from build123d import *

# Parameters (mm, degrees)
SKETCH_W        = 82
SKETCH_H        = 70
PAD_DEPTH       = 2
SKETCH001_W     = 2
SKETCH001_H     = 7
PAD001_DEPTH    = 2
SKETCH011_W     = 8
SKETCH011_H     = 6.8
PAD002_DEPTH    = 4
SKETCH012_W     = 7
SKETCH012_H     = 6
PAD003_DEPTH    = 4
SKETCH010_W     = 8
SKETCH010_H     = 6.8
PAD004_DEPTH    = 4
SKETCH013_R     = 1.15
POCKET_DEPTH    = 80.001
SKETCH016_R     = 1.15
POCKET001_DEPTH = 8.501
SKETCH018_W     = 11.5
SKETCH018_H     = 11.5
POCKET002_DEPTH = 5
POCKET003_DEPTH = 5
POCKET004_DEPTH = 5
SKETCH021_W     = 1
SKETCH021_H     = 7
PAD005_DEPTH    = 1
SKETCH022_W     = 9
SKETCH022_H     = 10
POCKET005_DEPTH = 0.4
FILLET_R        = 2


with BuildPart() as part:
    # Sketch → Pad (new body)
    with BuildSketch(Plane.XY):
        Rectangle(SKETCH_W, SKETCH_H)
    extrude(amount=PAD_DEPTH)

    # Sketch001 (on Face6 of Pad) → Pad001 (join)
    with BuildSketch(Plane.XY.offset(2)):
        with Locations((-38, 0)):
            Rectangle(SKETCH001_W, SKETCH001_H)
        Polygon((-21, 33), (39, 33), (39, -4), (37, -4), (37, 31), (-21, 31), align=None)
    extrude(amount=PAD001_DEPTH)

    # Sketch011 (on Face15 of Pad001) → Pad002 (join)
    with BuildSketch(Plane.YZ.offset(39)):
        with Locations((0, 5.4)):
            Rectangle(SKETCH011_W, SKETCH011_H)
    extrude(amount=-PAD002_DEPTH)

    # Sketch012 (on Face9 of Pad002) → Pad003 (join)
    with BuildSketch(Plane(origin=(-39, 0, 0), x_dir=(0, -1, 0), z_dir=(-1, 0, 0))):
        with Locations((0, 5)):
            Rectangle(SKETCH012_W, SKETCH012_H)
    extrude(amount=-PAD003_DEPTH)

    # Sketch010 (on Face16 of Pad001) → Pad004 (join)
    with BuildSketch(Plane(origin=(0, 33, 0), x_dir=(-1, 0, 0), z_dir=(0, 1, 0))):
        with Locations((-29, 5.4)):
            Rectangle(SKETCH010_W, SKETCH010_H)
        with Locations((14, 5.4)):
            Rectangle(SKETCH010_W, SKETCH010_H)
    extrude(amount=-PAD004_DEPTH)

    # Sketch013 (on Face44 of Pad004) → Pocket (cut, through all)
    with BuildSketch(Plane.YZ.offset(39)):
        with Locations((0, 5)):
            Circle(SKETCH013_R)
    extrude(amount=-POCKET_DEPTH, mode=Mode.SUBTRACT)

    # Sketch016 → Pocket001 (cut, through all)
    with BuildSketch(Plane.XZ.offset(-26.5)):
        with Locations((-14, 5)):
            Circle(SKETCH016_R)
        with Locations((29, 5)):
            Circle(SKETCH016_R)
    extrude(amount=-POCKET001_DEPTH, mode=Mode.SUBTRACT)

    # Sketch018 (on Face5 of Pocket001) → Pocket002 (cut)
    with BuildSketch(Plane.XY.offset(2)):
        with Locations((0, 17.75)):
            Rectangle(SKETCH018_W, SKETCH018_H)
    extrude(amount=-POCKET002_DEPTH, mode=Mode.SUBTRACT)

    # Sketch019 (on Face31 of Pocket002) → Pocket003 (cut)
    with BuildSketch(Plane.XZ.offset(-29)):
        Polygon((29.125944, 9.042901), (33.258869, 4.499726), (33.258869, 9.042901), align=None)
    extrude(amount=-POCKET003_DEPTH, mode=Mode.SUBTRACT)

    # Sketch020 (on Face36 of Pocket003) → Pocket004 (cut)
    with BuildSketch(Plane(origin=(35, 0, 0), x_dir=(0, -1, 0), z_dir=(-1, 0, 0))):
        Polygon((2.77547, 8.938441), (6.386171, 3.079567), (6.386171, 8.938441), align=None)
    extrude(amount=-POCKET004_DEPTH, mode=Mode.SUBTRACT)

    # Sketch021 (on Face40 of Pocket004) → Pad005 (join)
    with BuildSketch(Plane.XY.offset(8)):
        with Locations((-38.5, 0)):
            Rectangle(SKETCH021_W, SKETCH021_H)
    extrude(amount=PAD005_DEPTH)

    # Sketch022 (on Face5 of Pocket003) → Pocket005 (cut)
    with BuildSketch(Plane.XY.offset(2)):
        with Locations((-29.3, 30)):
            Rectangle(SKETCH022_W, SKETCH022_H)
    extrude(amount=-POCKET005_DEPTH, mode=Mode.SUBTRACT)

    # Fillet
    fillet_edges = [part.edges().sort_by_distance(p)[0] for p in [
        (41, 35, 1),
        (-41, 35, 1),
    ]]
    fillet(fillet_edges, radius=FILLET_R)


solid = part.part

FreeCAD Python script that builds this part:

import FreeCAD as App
import Part
import Sketcher


def edges_at(feature, points):
    """Names of the edges that pass closest to the given points."""
    edges = feature.Shape.Edges
    near = lambda p: min(range(len(edges)), key=lambda i: edges[i].distToShape(Part.Vertex(*p))[0])
    return sorted({f"Edge{near(p) + 1}" for p in points})

doc = App.newDocument("Part")
body = doc.addObject("PartDesign::Body", "Body")

sketch1 = body.newObject("Sketcher::SketchObject", "Sketch")
sketch1.AttachmentSupport = (doc.getObject("XY_Plane"), [""])
sketch1.MapMode = "FlatFace"
sketch1.addGeometry([
    Part.LineSegment(App.Vector(-41, 35, 0), App.Vector(-41, -35, 0)),
    Part.LineSegment(App.Vector(-41, -35, 0), App.Vector(41, -35, 0)),
    Part.LineSegment(App.Vector(41, -35, 0), App.Vector(41, 35, 0)),
    Part.LineSegment(App.Vector(41, 35, 0), App.Vector(-41, 35, 0)),
], False)
sketch1.addConstraint([
    Sketcher.Constraint("Coincident", 0, 2, 1, 1),
    Sketcher.Constraint("Coincident", 1, 2, 2, 1),
    Sketcher.Constraint("Coincident", 2, 2, 3, 1),
    Sketcher.Constraint("Coincident", 3, 2, 0, 1),
    Sketcher.Constraint("Vertical", 0),
    Sketcher.Constraint("Horizontal", 1),
    Sketcher.Constraint("Vertical", 2),
    Sketcher.Constraint("Horizontal", 3),
    Sketcher.Constraint("Symmetric", 0, 2, 2, 2, -1, 1),
    Sketcher.Constraint("DistanceX", 1, 1, 1, 2, 82.0),
    Sketcher.Constraint("DistanceY", 0, 2, 0, 1, 70.0),
])
pad1 = body.newObject("PartDesign::Pad", "Pad")
pad1.Profile = sketch1
pad1.Length = 2

sketch2 = body.newObject("Sketcher::SketchObject", "Sketch001")
sketch2.AttachmentSupport = (doc.getObject("XY_Plane"), [""])
sketch2.MapMode = "FlatFace"
sketch2.AttachmentOffset = App.Placement(App.Vector(0, 0, 2), App.Rotation())
sketch2.addGeometry([
    Part.LineSegment(App.Vector(-39, 3.5, 0), App.Vector(-39, -3.5, 0)),
    Part.LineSegment(App.Vector(-39, -3.5, 0), App.Vector(-37, -3.5, 0)),
    Part.LineSegment(App.Vector(-37, -3.5, 0), App.Vector(-37, 3.5, 0)),
    Part.LineSegment(App.Vector(-37, 3.5, 0), App.Vector(-39, 3.5, 0)),
    Part.LineSegment(App.Vector(39, 33, 0), App.Vector(-21, 33, 0)),
    Part.LineSegment(App.Vector(-21, 33, 0), App.Vector(-21, 31, 0)),
    Part.LineSegment(App.Vector(-21, 31, 0), App.Vector(37, 31, 0)),
    Part.LineSegment(App.Vector(37, 31, 0), App.Vector(37, -4, 0)),
    Part.LineSegment(App.Vector(37, -4, 0), App.Vector(39, -4, 0)),
    Part.LineSegment(App.Vector(39, -4, 0), App.Vector(39, 33, 0)),
], False)
sketch2.addConstraint([
    Sketcher.Constraint("Coincident", 0, 2, 1, 1),
    Sketcher.Constraint("Coincident", 1, 2, 2, 1),
    Sketcher.Constraint("Coincident", 2, 2, 3, 1),
    Sketcher.Constraint("Coincident", 3, 2, 0, 1),
    Sketcher.Constraint("Coincident", 4, 2, 5, 1),
    Sketcher.Constraint("Coincident", 5, 2, 6, 1),
    Sketcher.Constraint("Coincident", 6, 2, 7, 1),
    Sketcher.Constraint("Coincident", 7, 2, 8, 1),
    Sketcher.Constraint("Coincident", 8, 2, 9, 1),
    Sketcher.Constraint("Coincident", 9, 2, 4, 1),
    Sketcher.Constraint("Vertical", 0),
    Sketcher.Constraint("Horizontal", 1),
    Sketcher.Constraint("Vertical", 2),
    Sketcher.Constraint("Horizontal", 3),
    Sketcher.Constraint("Horizontal", 4),
    Sketcher.Constraint("Vertical", 5),
    Sketcher.Constraint("Horizontal", 6),
    Sketcher.Constraint("Vertical", 7),
    Sketcher.Constraint("Horizontal", 8),
    Sketcher.Constraint("Vertical", 9),
    Sketcher.Constraint("Equal", 3, 8),
    Sketcher.Constraint("Equal", 8, 5),
    Sketcher.Constraint("DistanceX", 1, 1, 1, 2, 2.0),
    Sketcher.Constraint("DistanceX", 4, 2, 4, 1, 60.0),
    Sketcher.Constraint("DistanceY", 0, 2, 0, 1, 7.0),
    Sketcher.Constraint("DistanceY", 7, 2, 7, 1, 35.0),
    Sketcher.Constraint("DistanceX", 0, 2, -1, 1, 39.0),
    Sketcher.Constraint("DistanceX", 4, 2, -1, 1, 21.0),
    Sketcher.Constraint("DistanceY", -1, 1, 4, 2, 33.0),
    Sketcher.Constraint("DistanceY", 0, 2, -1, 1, 3.5),
])
pad2 = body.newObject("PartDesign::Pad", "Pad001")
pad2.Profile = sketch2
pad2.Length = 2

sketch3 = body.newObject("Sketcher::SketchObject", "Sketch002")
sketch3.AttachmentSupport = (doc.getObject("YZ_Plane"), [""])
sketch3.MapMode = "FlatFace"
sketch3.AttachmentOffset = App.Placement(App.Vector(0, 0, 39), App.Rotation())
sketch3.addGeometry([
    Part.LineSegment(App.Vector(-4, 9, 0), App.Vector(-4, 2, 0)),
    Part.LineSegment(App.Vector(-4, 2, 0), App.Vector(4, 2, 0)),
    Part.LineSegment(App.Vector(4, 2, 0), App.Vector(4, 9, 0)),
    Part.LineSegment(App.Vector(4, 9, 0), App.Vector(-4, 9, 0)),
], False)
sketch3.addConstraint([
    Sketcher.Constraint("Coincident", 0, 2, 1, 1),
    Sketcher.Constraint("Coincident", 1, 2, 2, 1),
    Sketcher.Constraint("Coincident", 2, 2, 3, 1),
    Sketcher.Constraint("Coincident", 3, 2, 0, 1),
    Sketcher.Constraint("Vertical", 0),
    Sketcher.Constraint("Horizontal", 1),
    Sketcher.Constraint("Vertical", 2),
    Sketcher.Constraint("Horizontal", 3),
    Sketcher.Constraint("DistanceX", 1, 1, 1, 2, 8.0),
    Sketcher.Constraint("DistanceY", 0, 2, 0, 1, 6.8),
    Sketcher.Constraint("DistanceX", 0, 2, -1, 1, 4.0),
    Sketcher.Constraint("DistanceY", -1, 1, 0, 2, 2.0),
])
pad3 = body.newObject("PartDesign::Pad", "Pad002")
pad3.Profile = sketch3
pad3.Length = 4
pad3.Reversed = True

sketch4 = body.newObject("Sketcher::SketchObject", "Sketch003")
sketch4.AttachmentSupport = (doc.getObject("YZ_Plane"), [""])
sketch4.MapMode = "FlatFace"
sketch4.AttachmentOffset = App.Placement(App.Vector(0, 0, -39), App.Rotation())
sketch4.addGeometry([
    Part.LineSegment(App.Vector(4, 8, 0), App.Vector(4, 2, 0)),
    Part.LineSegment(App.Vector(4, 2, 0), App.Vector(-4, 2, 0)),
    Part.LineSegment(App.Vector(-4, 2, 0), App.Vector(-4, 8, 0)),
    Part.LineSegment(App.Vector(-4, 8, 0), App.Vector(4, 8, 0)),
], False)
sketch4.addConstraint([
    Sketcher.Constraint("Coincident", 0, 2, 1, 1),
    Sketcher.Constraint("Coincident", 1, 2, 2, 1),
    Sketcher.Constraint("Coincident", 2, 2, 3, 1),
    Sketcher.Constraint("Coincident", 3, 2, 0, 1),
    Sketcher.Constraint("Vertical", 0),
    Sketcher.Constraint("Horizontal", 1),
    Sketcher.Constraint("Vertical", 2),
    Sketcher.Constraint("Horizontal", 3),
    Sketcher.Constraint("DistanceX", 1, 2, 1, 1, 7.0),
    Sketcher.Constraint("DistanceY", 0, 2, 0, 1, 6.0),
    Sketcher.Constraint("DistanceY", -1, 1, 0, 2, 2.0),
    Sketcher.Constraint("DistanceX", -1, 1, 0, 2, 3.5),
])
pad4 = body.newObject("PartDesign::Pad", "Pad003")
pad4.Profile = sketch4
pad4.Length = 4

sketch5 = body.newObject("Sketcher::SketchObject", "Sketch004")
sketch5.AttachmentSupport = (doc.getObject("XZ_Plane"), [""])
sketch5.MapMode = "FlatFace"
sketch5.AttachmentOffset = App.Placement(App.Vector(0, 0, -33), App.Rotation())
sketch5.addGeometry([
    Part.LineSegment(App.Vector(33, 9, 0), App.Vector(33, 2, 0)),
    Part.LineSegment(App.Vector(33, 2, 0), App.Vector(25, 2, 0)),
    Part.LineSegment(App.Vector(25, 2, 0), App.Vector(25, 9, 0)),
    Part.LineSegment(App.Vector(25, 9, 0), App.Vector(33, 9, 0)),
    Part.LineSegment(App.Vector(-10, 9, 0), App.Vector(-10, 2, 0)),
    Part.LineSegment(App.Vector(-10, 2, 0), App.Vector(-18, 2, 0)),
    Part.LineSegment(App.Vector(-18, 2, 0), App.Vector(-18, 9, 0)),
    Part.LineSegment(App.Vector(-18, 9, 0), App.Vector(-10, 9, 0)),
], False)
sketch5.addConstraint([
    Sketcher.Constraint("Coincident", 0, 2, 1, 1),
    Sketcher.Constraint("Coincident", 1, 2, 2, 1),
    Sketcher.Constraint("Coincident", 2, 2, 3, 1),
    Sketcher.Constraint("Coincident", 3, 2, 0, 1),
    Sketcher.Constraint("Coincident", 4, 2, 5, 1),
    Sketcher.Constraint("Coincident", 5, 2, 6, 1),
    Sketcher.Constraint("Coincident", 6, 2, 7, 1),
    Sketcher.Constraint("Coincident", 7, 2, 4, 1),
    Sketcher.Constraint("Vertical", 0),
    Sketcher.Constraint("Horizontal", 1),
    Sketcher.Constraint("Vertical", 2),
    Sketcher.Constraint("Horizontal", 3),
    Sketcher.Constraint("Vertical", 4),
    Sketcher.Constraint("Horizontal", 5),
    Sketcher.Constraint("Vertical", 6),
    Sketcher.Constraint("Horizontal", 7),
    Sketcher.Constraint("Horizontal", 1, 2, 4, 2),
    Sketcher.Constraint("Horizontal", 3, 2, 6, 2),
    Sketcher.Constraint("Equal", 3, 5),
    Sketcher.Constraint("DistanceX", 1, 2, 1, 1, 8.0),
    Sketcher.Constraint("DistanceY", 0, 2, 0, 1, 6.8),
    Sketcher.Constraint("DistanceX", -1, 1, 0, 2, 33.0),
    Sketcher.Constraint("DistanceY", -1, 1, 0, 2, 2.0),
    Sketcher.Constraint("DistanceX", 4, 2, -1, 1, 10.0),
])
pad5 = body.newObject("PartDesign::Pad", "Pad004")
pad5.Profile = sketch5
pad5.Length = 4

sketch6 = body.newObject("Sketcher::SketchObject", "Sketch005")
sketch6.AttachmentSupport = (doc.getObject("YZ_Plane"), [""])
sketch6.MapMode = "FlatFace"
sketch6.AttachmentOffset = App.Placement(App.Vector(0, 0, 39), App.Rotation())
sketch6.addGeometry(Part.Circle(App.Vector(0, 5, 0), App.Vector(0, 0, 1), 1.1), False)
sketch6.addConstraint([
    Sketcher.Constraint("PointOnObject", 0, 3, -2),
    Sketcher.Constraint("Diameter", 0, 2.3),
    Sketcher.Constraint("DistanceY", -1, 1, 0, 3, 5.0),
])
pocket1 = body.newObject("PartDesign::Pocket", "Pocket")
pocket1.Profile = sketch6
pocket1.Type = "ThroughAll"

sketch7 = body.newObject("Sketcher::SketchObject", "Sketch006")
sketch7.AttachmentSupport = (doc.getObject("XZ_Plane"), [""])
sketch7.MapMode = "FlatFace"
sketch7.AttachmentOffset = App.Placement(App.Vector(0, 0, -26.5), App.Rotation())
sketch7.addGeometry([
    Part.Circle(App.Vector(-14, 5, 0), App.Vector(0, 0, 1), 1.1),
    Part.Circle(App.Vector(29, 5, 0), App.Vector(0, 0, 1), 1.1),
], False)
sketch7.addConstraint([
    Sketcher.Constraint("Equal", 0, 1),
    Sketcher.Constraint("Horizontal", 0, 3, 1, 3),
    Sketcher.Constraint("Diameter", 0, 2.3),
    Sketcher.Constraint("DistanceX", 0, 3, -1, 1, 14.0),
    Sketcher.Constraint("DistanceY", -1, 1, 0, 3, 5.0),
    Sketcher.Constraint("DistanceX", -1, 1, 1, 3, 29.0),
])
pocket2 = body.newObject("PartDesign::Pocket", "Pocket001")
pocket2.Profile = sketch7
pocket2.Type = "ThroughAll"

sketch8 = body.newObject("Sketcher::SketchObject", "Sketch007")
sketch8.AttachmentSupport = (doc.getObject("XY_Plane"), [""])
sketch8.MapMode = "FlatFace"
sketch8.AttachmentOffset = App.Placement(App.Vector(0, 0, 2), App.Rotation())
sketch8.addGeometry([
    Part.LineSegment(App.Vector(-6, 24, 0), App.Vector(-6, 12, 0)),
    Part.LineSegment(App.Vector(-6, 12, 0), App.Vector(6, 12, 0)),
    Part.LineSegment(App.Vector(6, 12, 0), App.Vector(6, 24, 0)),
    Part.LineSegment(App.Vector(6, 24, 0), App.Vector(-6, 24, 0)),
], False)
sketch8.addConstraint([
    Sketcher.Constraint("Coincident", 0, 2, 1, 1),
    Sketcher.Constraint("Coincident", 1, 2, 2, 1),
    Sketcher.Constraint("Coincident", 2, 2, 3, 1),
    Sketcher.Constraint("Coincident", 3, 2, 0, 1),
    Sketcher.Constraint("Vertical", 0),
    Sketcher.Constraint("Horizontal", 1),
    Sketcher.Constraint("Vertical", 2),
    Sketcher.Constraint("Horizontal", 3),
    Sketcher.Constraint("Equal", 3, 0),
    Sketcher.Constraint("DistanceX", 1, 1, 1, 2, 11.5),
    Sketcher.Constraint("DistanceY", -1, 1, 0, 2, 12.0),
    Sketcher.Constraint("DistanceX", 0, 2, -1, 1, 5.75),
])
pocket3 = body.newObject("PartDesign::Pocket", "Pocket002")
pocket3.Profile = sketch8
pocket3.Length = 5

sketch9 = body.newObject("Sketcher::SketchObject", "Sketch008")
sketch9.AttachmentSupport = (doc.getObject("XZ_Plane"), [""])
sketch9.MapMode = "FlatFace"
sketch9.AttachmentOffset = App.Placement(App.Vector(0, 0, -29), App.Rotation())
sketch9.addGeometry([
    Part.LineSegment(App.Vector(29.1, 9, 0), App.Vector(33.3, 4.5, 0)),
    Part.LineSegment(App.Vector(33.3, 4.5, 0), App.Vector(33.3, 9, 0)),
    Part.LineSegment(App.Vector(33.3, 9, 0), App.Vector(29.1, 9, 0)),
], False)
sketch9.addConstraint([
    Sketcher.Constraint("Coincident", 0, 2, 1, 1),
    Sketcher.Constraint("Coincident", 1, 2, 2, 1),
    Sketcher.Constraint("Coincident", 2, 2, 0, 1),
    Sketcher.Constraint("Vertical", 1),
    Sketcher.Constraint("Horizontal", 2),
    Sketcher.Constraint("DistanceY", -1, 1, 1, 2, 9.042901),
    Sketcher.Constraint("DistanceX", 2, 2, 2, 1, 4.132925),
    Sketcher.Constraint("DistanceY", 1, 1, 1, 2, 4.543175),
    Sketcher.Constraint("DistanceX", -1, 1, 0, 2, 33.258869),
])
pocket4 = body.newObject("PartDesign::Pocket", "Pocket003")
pocket4.Profile = sketch9
pocket4.Length = 5

sketch10 = body.newObject("Sketcher::SketchObject", "Sketch009")
sketch10.AttachmentSupport = (doc.getObject("YZ_Plane"), [""])
sketch10.MapMode = "FlatFace"
sketch10.AttachmentOffset = App.Placement(App.Vector(0, 0, 35), App.Rotation())
sketch10.addGeometry([
    Part.LineSegment(App.Vector(-2.8, 8.9, 0), App.Vector(-6.4, 3.1, 0)),
    Part.LineSegment(App.Vector(-6.4, 3.1, 0), App.Vector(-6.4, 8.9, 0)),
    Part.LineSegment(App.Vector(-6.4, 8.9, 0), App.Vector(-2.8, 8.9, 0)),
], False)
sketch10.addConstraint([
    Sketcher.Constraint("Coincident", 0, 2, 1, 1),
    Sketcher.Constraint("Coincident", 1, 2, 2, 1),
    Sketcher.Constraint("Coincident", 2, 2, 0, 1),
    Sketcher.Constraint("Vertical", 1),
    Sketcher.Constraint("Horizontal", 2),
    Sketcher.Constraint("DistanceX", 2, 1, 2, 2, 3.610701),
    Sketcher.Constraint("Distance", 0, 6.882119),
    Sketcher.Constraint("DistanceX", 0, 2, -1, 1, 6.386171),
    Sketcher.Constraint("DistanceY", -1, 1, 1, 2, 8.938441),
])
pocket5 = body.newObject("PartDesign::Pocket", "Pocket004")
pocket5.Profile = sketch10
pocket5.Length = 5
pocket5.Reversed = True

sketch11 = body.newObject("Sketcher::SketchObject", "Sketch010")
sketch11.AttachmentSupport = (doc.getObject("XY_Plane"), [""])
sketch11.MapMode = "FlatFace"
sketch11.AttachmentOffset = App.Placement(App.Vector(0, 0, 8), App.Rotation())
sketch11.addGeometry([
    Part.LineSegment(App.Vector(-39, 3.5, 0), App.Vector(-39, -3.5, 0)),
    Part.LineSegment(App.Vector(-39, -3.5, 0), App.Vector(-38, -3.5, 0)),
    Part.LineSegment(App.Vector(-38, -3.5, 0), App.Vector(-38, 3.5, 0)),
    Part.LineSegment(App.Vector(-38, 3.5, 0), App.Vector(-39, 3.5, 0)),
], False)
sketch11.addConstraint([
    Sketcher.Constraint("Coincident", 0, 2, 1, 1),
    Sketcher.Constraint("Coincident", 1, 2, 2, 1),
    Sketcher.Constraint("Coincident", 2, 2, 3, 1),
    Sketcher.Constraint("Coincident", 3, 2, 0, 1),
    Sketcher.Constraint("Vertical", 0),
    Sketcher.Constraint("Horizontal", 1),
    Sketcher.Constraint("Vertical", 2),
    Sketcher.Constraint("Horizontal", 3),
    Sketcher.Constraint("DistanceX", 1, 1, 1, 2, 1.0),
    Sketcher.Constraint("DistanceY", 0, 2, 0, 1, 7.0),
    Sketcher.Constraint("DistanceX", 0, 2, -1, 1, 39.0),
    Sketcher.Constraint("DistanceY", 0, 2, -1, 1, 3.5),
])
pad6 = body.newObject("PartDesign::Pad", "Pad005")
pad6.Profile = sketch11
pad6.Length = 1

sketch12 = body.newObject("Sketcher::SketchObject", "Sketch011")
sketch12.AttachmentSupport = (doc.getObject("XY_Plane"), [""])
sketch12.MapMode = "FlatFace"
sketch12.AttachmentOffset = App.Placement(App.Vector(0, 0, 2), App.Rotation())
sketch12.addGeometry([
    Part.LineSegment(App.Vector(-34, 35, 0), App.Vector(-34, 25, 0)),
    Part.LineSegment(App.Vector(-34, 25, 0), App.Vector(-25, 25, 0)),
    Part.LineSegment(App.Vector(-25, 25, 0), App.Vector(-25, 35, 0)),
    Part.LineSegment(App.Vector(-25, 35, 0), App.Vector(-34, 35, 0)),
], False)
sketch12.addConstraint([
    Sketcher.Constraint("Coincident", 0, 2, 1, 1),
    Sketcher.Constraint("Coincident", 1, 2, 2, 1),
    Sketcher.Constraint("Coincident", 2, 2, 3, 1),
    Sketcher.Constraint("Coincident", 3, 2, 0, 1),
    Sketcher.Constraint("Vertical", 0),
    Sketcher.Constraint("Horizontal", 1),
    Sketcher.Constraint("Vertical", 2),
    Sketcher.Constraint("Horizontal", 3),
    Sketcher.Constraint("DistanceX", 1, 1, 1, 2, 9.0),
    Sketcher.Constraint("DistanceY", 0, 2, 0, 1, 10.0),
    Sketcher.Constraint("DistanceY", -1, 1, 0, 2, 25.0),
    Sketcher.Constraint("DistanceX", 0, 2, -1, 1, 33.8),
])
pocket6 = body.newObject("PartDesign::Pocket", "Pocket005")
pocket6.Profile = sketch12
pocket6.Length = 0.4
doc.recompute()

fillet = body.newObject("PartDesign::Fillet", "Fillet")
fillet.Base = (pocket6, edges_at(pocket6, [(41, 35, 1), (-41, 35, 1)]))
fillet.Radius = 2

doc.recompute()
